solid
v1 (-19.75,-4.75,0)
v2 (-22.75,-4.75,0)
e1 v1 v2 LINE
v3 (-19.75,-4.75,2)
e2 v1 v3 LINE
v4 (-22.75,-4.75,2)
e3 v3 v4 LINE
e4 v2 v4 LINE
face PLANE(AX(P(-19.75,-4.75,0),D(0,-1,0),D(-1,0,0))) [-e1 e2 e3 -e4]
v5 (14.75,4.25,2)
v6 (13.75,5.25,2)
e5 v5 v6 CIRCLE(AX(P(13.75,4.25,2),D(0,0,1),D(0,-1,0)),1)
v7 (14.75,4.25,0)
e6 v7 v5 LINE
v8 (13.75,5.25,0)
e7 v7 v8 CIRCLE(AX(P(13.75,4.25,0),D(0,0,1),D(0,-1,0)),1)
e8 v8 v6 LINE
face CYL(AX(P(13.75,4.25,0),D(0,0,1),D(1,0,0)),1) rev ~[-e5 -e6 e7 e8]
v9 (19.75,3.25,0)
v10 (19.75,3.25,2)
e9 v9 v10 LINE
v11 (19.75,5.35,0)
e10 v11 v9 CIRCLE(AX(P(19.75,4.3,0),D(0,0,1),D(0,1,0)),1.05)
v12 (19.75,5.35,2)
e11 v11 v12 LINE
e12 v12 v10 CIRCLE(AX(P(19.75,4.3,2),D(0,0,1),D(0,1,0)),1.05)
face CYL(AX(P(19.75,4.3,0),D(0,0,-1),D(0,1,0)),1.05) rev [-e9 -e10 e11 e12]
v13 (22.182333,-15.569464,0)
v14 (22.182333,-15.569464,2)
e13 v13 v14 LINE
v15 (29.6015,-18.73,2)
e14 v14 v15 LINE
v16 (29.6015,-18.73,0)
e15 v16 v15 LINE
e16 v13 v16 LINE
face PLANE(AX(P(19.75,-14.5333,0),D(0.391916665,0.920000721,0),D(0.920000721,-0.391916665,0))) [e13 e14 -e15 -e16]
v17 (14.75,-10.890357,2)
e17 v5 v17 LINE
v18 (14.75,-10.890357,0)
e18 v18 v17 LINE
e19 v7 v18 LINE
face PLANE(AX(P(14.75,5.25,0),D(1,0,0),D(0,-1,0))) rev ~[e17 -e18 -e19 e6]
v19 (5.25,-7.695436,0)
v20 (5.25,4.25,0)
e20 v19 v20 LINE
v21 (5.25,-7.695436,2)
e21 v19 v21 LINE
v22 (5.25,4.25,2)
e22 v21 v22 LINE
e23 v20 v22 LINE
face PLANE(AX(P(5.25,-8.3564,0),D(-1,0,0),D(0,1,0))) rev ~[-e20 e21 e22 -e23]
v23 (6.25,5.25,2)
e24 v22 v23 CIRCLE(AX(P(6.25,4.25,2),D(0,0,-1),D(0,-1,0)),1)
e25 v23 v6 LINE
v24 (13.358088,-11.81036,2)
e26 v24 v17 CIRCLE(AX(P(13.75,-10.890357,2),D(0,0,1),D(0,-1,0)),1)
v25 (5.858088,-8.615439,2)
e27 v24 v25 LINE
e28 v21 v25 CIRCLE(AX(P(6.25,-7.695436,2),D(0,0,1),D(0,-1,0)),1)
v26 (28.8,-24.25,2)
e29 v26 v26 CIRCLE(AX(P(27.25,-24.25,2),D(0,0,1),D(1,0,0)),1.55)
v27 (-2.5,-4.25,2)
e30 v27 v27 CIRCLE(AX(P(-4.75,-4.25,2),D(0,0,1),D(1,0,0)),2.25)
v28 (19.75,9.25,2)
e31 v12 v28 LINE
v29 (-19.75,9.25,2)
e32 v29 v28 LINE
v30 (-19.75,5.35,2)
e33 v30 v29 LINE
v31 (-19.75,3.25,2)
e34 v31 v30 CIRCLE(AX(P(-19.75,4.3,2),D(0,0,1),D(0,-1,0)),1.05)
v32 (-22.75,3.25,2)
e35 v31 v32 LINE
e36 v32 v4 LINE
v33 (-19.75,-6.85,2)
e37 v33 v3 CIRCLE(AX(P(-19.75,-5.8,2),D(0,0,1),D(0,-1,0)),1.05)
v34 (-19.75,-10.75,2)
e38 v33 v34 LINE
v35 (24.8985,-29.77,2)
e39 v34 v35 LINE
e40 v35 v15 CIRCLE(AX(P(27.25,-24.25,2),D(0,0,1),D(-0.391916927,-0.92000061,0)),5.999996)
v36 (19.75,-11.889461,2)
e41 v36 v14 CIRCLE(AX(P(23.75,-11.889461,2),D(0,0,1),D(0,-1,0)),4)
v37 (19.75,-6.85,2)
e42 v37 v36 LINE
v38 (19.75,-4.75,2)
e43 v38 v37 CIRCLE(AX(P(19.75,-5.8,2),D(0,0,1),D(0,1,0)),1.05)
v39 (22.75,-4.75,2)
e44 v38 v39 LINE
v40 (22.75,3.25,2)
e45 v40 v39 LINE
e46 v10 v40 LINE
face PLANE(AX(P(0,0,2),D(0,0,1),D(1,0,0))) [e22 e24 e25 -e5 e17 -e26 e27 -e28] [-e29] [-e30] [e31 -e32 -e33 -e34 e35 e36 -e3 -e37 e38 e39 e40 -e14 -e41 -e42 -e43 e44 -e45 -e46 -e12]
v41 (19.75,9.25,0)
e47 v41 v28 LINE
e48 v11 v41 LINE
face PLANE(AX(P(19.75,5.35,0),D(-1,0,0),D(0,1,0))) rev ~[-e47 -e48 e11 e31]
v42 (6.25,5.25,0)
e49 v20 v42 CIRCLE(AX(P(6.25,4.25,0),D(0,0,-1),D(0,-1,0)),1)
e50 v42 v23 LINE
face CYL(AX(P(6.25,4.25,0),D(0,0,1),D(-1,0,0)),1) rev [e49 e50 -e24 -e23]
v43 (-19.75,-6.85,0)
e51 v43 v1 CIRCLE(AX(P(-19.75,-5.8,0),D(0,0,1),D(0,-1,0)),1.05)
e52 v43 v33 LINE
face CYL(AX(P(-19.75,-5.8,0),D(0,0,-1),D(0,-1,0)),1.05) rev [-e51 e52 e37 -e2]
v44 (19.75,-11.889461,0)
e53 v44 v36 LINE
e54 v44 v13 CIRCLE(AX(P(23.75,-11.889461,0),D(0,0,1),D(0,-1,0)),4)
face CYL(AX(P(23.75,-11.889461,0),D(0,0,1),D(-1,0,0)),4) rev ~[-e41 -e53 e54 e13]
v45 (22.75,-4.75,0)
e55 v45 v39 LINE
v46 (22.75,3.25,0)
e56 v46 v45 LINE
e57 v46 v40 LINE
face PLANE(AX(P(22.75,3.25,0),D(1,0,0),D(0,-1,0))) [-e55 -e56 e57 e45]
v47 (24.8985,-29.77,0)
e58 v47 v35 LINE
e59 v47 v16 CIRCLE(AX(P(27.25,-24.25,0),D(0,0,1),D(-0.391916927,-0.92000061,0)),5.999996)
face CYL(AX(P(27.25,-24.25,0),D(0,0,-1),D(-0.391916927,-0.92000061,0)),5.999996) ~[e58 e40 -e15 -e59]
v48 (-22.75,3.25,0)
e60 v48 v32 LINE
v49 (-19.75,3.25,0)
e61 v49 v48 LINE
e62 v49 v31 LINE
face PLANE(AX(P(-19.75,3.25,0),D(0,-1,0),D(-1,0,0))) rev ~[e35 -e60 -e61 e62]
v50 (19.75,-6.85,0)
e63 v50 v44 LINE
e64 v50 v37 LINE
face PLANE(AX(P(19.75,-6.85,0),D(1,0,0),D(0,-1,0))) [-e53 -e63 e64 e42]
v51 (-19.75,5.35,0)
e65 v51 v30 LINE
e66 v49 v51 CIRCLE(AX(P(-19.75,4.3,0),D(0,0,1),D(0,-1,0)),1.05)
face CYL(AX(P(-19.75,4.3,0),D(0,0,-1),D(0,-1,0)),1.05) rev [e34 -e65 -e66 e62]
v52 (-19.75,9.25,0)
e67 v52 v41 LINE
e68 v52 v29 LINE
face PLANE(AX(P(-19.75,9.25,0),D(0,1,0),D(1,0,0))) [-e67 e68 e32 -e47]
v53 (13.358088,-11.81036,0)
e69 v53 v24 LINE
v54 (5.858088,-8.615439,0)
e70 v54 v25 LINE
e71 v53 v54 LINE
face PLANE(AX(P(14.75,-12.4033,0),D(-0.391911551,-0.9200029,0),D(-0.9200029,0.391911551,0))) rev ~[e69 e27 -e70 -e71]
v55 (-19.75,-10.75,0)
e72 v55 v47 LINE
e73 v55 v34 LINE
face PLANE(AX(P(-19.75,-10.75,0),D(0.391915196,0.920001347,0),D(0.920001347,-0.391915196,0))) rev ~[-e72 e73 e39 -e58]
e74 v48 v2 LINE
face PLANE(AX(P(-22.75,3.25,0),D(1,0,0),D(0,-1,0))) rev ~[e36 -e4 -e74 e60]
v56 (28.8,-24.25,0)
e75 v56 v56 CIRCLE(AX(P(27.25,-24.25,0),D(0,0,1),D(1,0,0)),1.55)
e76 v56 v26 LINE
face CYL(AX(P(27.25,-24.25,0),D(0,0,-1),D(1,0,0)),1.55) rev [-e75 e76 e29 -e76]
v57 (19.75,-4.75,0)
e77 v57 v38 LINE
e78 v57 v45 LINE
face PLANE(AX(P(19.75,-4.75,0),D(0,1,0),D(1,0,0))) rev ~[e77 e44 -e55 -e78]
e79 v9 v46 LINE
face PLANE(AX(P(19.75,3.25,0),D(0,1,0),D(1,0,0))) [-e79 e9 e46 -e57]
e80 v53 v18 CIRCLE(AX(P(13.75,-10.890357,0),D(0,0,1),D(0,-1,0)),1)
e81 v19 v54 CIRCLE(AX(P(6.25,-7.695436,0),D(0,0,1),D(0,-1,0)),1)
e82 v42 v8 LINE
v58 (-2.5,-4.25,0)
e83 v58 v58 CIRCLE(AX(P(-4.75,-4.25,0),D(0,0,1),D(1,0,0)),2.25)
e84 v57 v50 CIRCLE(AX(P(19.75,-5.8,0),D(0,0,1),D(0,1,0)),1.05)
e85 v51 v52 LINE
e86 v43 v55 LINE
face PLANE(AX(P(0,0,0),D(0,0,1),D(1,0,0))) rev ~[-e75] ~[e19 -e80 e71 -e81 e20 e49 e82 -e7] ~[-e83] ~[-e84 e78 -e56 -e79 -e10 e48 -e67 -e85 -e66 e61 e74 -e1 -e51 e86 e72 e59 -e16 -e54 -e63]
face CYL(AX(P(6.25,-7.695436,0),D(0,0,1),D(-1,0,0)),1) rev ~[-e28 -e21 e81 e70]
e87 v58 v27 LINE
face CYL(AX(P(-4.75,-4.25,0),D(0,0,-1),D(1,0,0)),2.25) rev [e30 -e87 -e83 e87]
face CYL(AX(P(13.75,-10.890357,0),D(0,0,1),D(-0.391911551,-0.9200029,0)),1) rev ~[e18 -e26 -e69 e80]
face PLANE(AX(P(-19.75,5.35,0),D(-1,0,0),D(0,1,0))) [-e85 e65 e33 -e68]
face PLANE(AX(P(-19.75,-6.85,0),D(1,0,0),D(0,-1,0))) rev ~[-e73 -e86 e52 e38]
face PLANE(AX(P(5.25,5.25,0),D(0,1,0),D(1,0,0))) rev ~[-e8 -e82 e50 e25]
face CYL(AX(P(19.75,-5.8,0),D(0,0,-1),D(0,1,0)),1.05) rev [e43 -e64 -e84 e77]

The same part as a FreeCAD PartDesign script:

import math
import FreeCAD as App
import Part
import Sketcher
from FreeCAD import Vector
Q = App.Units.Quantity


def edges_at(feature, points):
    """Names of the edges that pass closest to the given points."""
    edges = feature.Shape.Edges
    near = lambda p: min(range(len(edges)), key=lambda i: edges[i].distToShape(Part.Vertex(*p))[0])
    return sorted({f"Edge{near(p) + 1}" for p in points})

doc = App.newDocument("Part")
params = doc.addObject("Spreadsheet::Sheet", "Params")
for row, (alias, value) in enumerate([
    ("sketch1_radius", "6 mm"),
    ("sketch1_diameter", "3.1 mm"),
    ("sketch1_diameter2", "4.5 mm"),
    ("sketch1_width", "3 mm"),
    ("sketch1_height", "8 mm"),
    ("pad1_length", "2 mm"),
    ("fillet_radius", "4 mm"),
    ("fillet2_radius", "1 mm"),
], start=1):
    params.set(f"A{row}", alias)
    params.set(f"B{row}", "=" + value)
    params.setAlias(f"B{row}", alias)

body = doc.addObject("PartDesign::Body", "Body")

# Sketch on XY plane
sketch1 = body.newObject("Sketcher::SketchObject", "Sketch")
sketch1.AttachmentSupport = (doc.getObject("XY_Plane"), [""])
sketch1.MapMode = "FlatFace"
sketch1.addGeometry(Part.ArcOfCircle(Part.Circle(Vector(-19.8, 4.3, 0), Vector(0, 0, 1), 1), math.radians(-90), math.radians(90)), False)
sketch1.addGeometry(Part.LineSegment(Vector(-19.8, 3.2, 0), Vector(-22.8, 3.2, 0)), False)
sketch1.addGeometry(Part.LineSegment(Vector(-22.8, 3.2, 0), Vector(-22.8, -4.8, 0)), False)
sketch1.addGeometry(Part.LineSegment(Vector(-22.8, -4.8, 0), Vector(-19.8, -4.8, 0)), False)
sketch1.addGeometry(Part.ArcOfCircle(Part.Circle(Vector(-19.8, -5.8, 0), Vector(0, 0, 1), 1), math.radians(-90), math.radians(90)), False)
sketch1.addGeometry(Part.LineSegment(Vector(-19.8, -6.8, 0), Vector(-19.8, -10.8, 0)), False)
sketch1.addGeometry(Part.LineSegment(Vector(-19.8, -10.8, 0), Vector(24.9, -29.8, 0)), False)
sketch1.addGeometry(Part.ArcOfCircle(Part.Circle(Vector(27.2, -24.2, 0), Vector(0, 0, 1), 6), math.radians(-113), math.radians(67)), False)
sketch1.addGeometry(Part.LineSegment(Vector(29.6, -18.7, 0), Vector(19.8, -14.5, 0)), False)
sketch1.addGeometry(Part.LineSegment(Vector(19.8, -14.5, 0), Vector(19.8, -6.8, 0)), False)
sketch1.addGeometry(Part.ArcOfCircle(Part.Circle(Vector(19.8, -5.8, 0), Vector(0, 0, 1), 1), math.radians(90), math.radians(270)), False)
sketch1.addGeometry(Part.LineSegment(Vector(19.8, -4.8, 0), Vector(22.8, -4.8, 0)), False)
sketch1.addGeometry(Part.LineSegment(Vector(22.8, -4.8, 0), Vector(22.8, 3.2, 0)), False)
sketch1.addGeometry(Part.LineSegment(Vector(22.8, 3.2, 0), Vector(19.8, 3.2, 0)), False)
sketch1.addGeometry(Part.ArcOfCircle(Part.Circle(Vector(19.8, 4.3, 0), Vector(0, 0, 1), 1), math.radians(90), math.radians(270)), False)
sketch1.addGeometry(Part.LineSegment(Vector(19.8, 5.3, 0), Vector(19.8, 9.2, 0)), False)
sketch1.addGeometry(Part.LineSegment(Vector(19.8, 9.2, 0), Vector(-19.8, 9.2, 0)), False)
sketch1.addGeometry(Part.LineSegment(Vector(-19.8, 9.2, 0), Vector(-19.8, 5.3, 0)), False)
sketch1.addGeometry(Part.Circle(Vector(27.2, -24.2, 0), Vector(0, 0, 1), 1.6), False)
sketch1.addGeometry(Part.Circle(Vector(-4.8, -4.2, 0), Vector(0, 0, 1), 2.2), False)
sketch1.addGeometry(Part.LineSegment(Vector(5.2, -8.4, 0), Vector(5.2, 5.2, 0)), False)
sketch1.addGeometry(Part.LineSegment(Vector(5.2, 5.2, 0), Vector(14.8, 5.2, 0)), False)
sketch1.addGeometry(Part.LineSegment(Vector(14.8, 5.2, 0), Vector(14.8, -12.4, 0)), False)
sketch1.addGeometry(Part.LineSegment(Vector(14.8, -12.4, 0), Vector(5.2, -8.4, 0)), False)
sketch1.addConstraint(Sketcher.Constraint("Tangent", 0, 1, 1, 1))
sketch1.addConstraint(Sketcher.Constraint("Coincident", 1, 2, 2, 1))
sketch1.addConstraint(Sketcher.Constraint("Coincident", 2, 2, 3, 1))
sketch1.addConstraint(Sketcher.Constraint("Tangent", 3, 2, 4, 2))
sketch1.addConstraint(Sketcher.Constraint("Coincident", 4, 1, 5, 1))
sketch1.addConstraint(Sketcher.Constraint("Coincident", 5, 2, 6, 1))
sketch1.addConstraint(Sketcher.Constraint("Tangent", 6, 2, 7, 1))
sketch1.addConstraint(Sketcher.Constraint("Tangent", 7, 2, 8, 1))
sketch1.addConstraint(Sketcher.Constraint("Coincident", 8, 2, 9, 1))
sketch1.addConstraint(Sketcher.Constraint("Coincident", 9, 2, 10, 2))
sketch1.addConstraint(Sketcher.Constraint("Tangent", 10, 1, 11, 1))
sketch1.addConstraint(Sketcher.Constraint("Coincident", 11, 2, 12, 1))
sketch1.addConstraint(Sketcher.Constraint("Coincident", 12, 2, 13, 1))
sketch1.addConstraint(Sketcher.Constraint("Tangent", 13, 2, 14, 2))
sketch1.addConstraint(Sketcher.Constraint("Coincident", 14, 1, 15, 1))
sketch1.addConstraint(Sketcher.Constraint("Coincident", 15, 2, 16, 1))
sketch1.addConstraint(Sketcher.Constraint("Coincident", 16, 2, 17, 1))
sketch1.addConstraint(Sketcher.Constraint("Coincident", 17, 2, 0, 2))
sketch1.addConstraint(Sketcher.Constraint("Coincident", 20, 2, 21, 1))
sketch1.addConstraint(Sketcher.Constraint("Coincident", 21, 2, 22, 1))
sketch1.addConstraint(Sketcher.Constraint("Coincident", 22, 2, 23, 1))
sketch1.addConstraint(Sketcher.Constraint("Coincident", 23, 2, 20, 1))
sketch1.addConstraint(Sketcher.Constraint("Horizontal", 1))
sketch1.addConstraint(Sketcher.Constraint("Vertical", 2))
sketch1.addConstraint(Sketcher.Constraint("Horizontal", 3))
sketch1.addConstraint(Sketcher.Constraint("Vertical", 5))
sketch1.addConstraint(Sketcher.Constraint("Vertical", 9))
sketch1.addConstraint(Sketcher.Constraint("Horizontal", 11))
sketch1.addConstraint(Sketcher.Constraint("Vertical", 12))
sketch1.addConstraint(Sketcher.Constraint("Horizontal", 13))
sketch1.addConstraint(Sketcher.Constraint("Vertical", 15))
sketch1.addConstraint(Sketcher.Constraint("Horizontal", 16))
sketch1.addConstraint(Sketcher.Constraint("Vertical", 17))
sketch1.addConstraint(Sketcher.Constraint("Vertical", 20))
sketch1.addConstraint(Sketcher.Constraint("Horizontal", 21))
sketch1.addConstraint(Sketcher.Constraint("Vertical", 22))
sketch1.addConstraint(Sketcher.Constraint("Coincident", 18, 3, 7, 3))
sketch1.addConstraint(Sketcher.Constraint("Equal", 0, 4))
sketch1.addConstraint(Sketcher.Constraint("Equal", 4, 10))
sketch1.addConstraint(Sketcher.Constraint("Equal", 10, 14))
sketch1.addConstraint(Sketcher.Constraint("Symmetric", 4, 3, 10, 3, -2))
sketch1.addConstraint(Sketcher.Constraint("Symmetric", 0, 3, 14, 3, -2))
sketch1.addConstraint(Sketcher.Constraint("Parallel", 6, 8))
sketch1.addConstraint(Sketcher.Constraint("Parallel", 8, 23))
sketch1.addConstraint(Sketcher.Constraint("Vertical", 0, 3, 4, 3))
sketch1.addConstraint(Sketcher.Constraint("Vertical", 3, 2, 4, 1))
sketch1.addConstraint(Sketcher.Constraint("Vertical", 14, 3, 8, 2))
sketch1.addConstraint(Sketcher.Constraint("Vertical", 13, 2, 14, 1))
sketch1.addConstraint(Sketcher.Constraint("Vertical", 5, 2, 16, 2))
sketch1.addConstraint(Sketcher.Constraint("Equal", 3, 11))
sketch1.addConstraint(Sketcher.Constraint("Equal", 5, 15))
sketch1.addConstraint(Sketcher.Constraint("Radius", 7, Q("6 mm")))
sketch1.addConstraint(Sketcher.Constraint("Diameter", 18, Q("3.1 mm")))
sketch1.addConstraint(Sketcher.Constraint("Diameter", 19, Q("4.5 mm")))
sketch1.addConstraint(Sketcher.Constraint("DistanceX", 1, 2, 1, 1, Q("3 mm")))
sketch1.addConstraint(Sketcher.Constraint("DistanceY", 2, 2, 2, 1, Q("8 mm")))
sketch1.addConstraint(Sketcher.Constraint("Radius", 0, Q("1.05 mm")))
sketch1.addConstraint(Sketcher.Constraint("DistanceX", 16, 2, 16, 1, Q("39.5 mm")))
sketch1.addConstraint(Sketcher.Constraint("DistanceX", 4, 3, 19, 3, Q("15 mm")))
sketch1.addConstraint(Sketcher.Constraint("DistanceX", 19, 3, 7, 3, Q("32 mm")))
sketch1.addConstraint(Sketcher.Constraint("DistanceY", 7, 3, 19, 3, Q("20 mm")))
sketch1.addConstraint(Sketcher.Constraint("DistanceY", 5, 2, 3, 2, Q("6 mm")))
sketch1.addConstraint(Sketcher.Constraint("DistanceY", 20, 2, 15, 2, Q("4 mm")))
sketch1.addConstraint(Sketcher.Constraint("DistanceX", 21, 2, 14, 1, Q("5 mm")))
sketch1.addConstraint(Sketcher.Constraint("DistanceX", 21, 1, 21, 2, Q("9.5 mm")))
sketch1.addConstraint(Sketcher.Constraint("DistanceY", -1, 1, 0, 3, Q("4.3 mm")))
sketch1.addConstraint(Sketcher.Constraint("DistanceY", 19, 3, 0, 1, Q("7.5 mm")))
sketch1.addConstraint(Sketcher.Constraint("DistanceY", 8, 2, 22, 2, Q("2.13 mm")))
sketch1.setExpression("Constraints[51]", "Params.sketch1_radius")
sketch1.setExpression("Constraints[52]", "Params.sketch1_diameter")
sketch1.setExpression("Constraints[53]", "Params.sketch1_diameter2")
sketch1.setExpression("Constraints[54]", "Params.sketch1_width")
sketch1.setExpression("Constraints[55]", "Params.sketch1_height")
pad1 = body.newObject("PartDesign::Pad", "Pad")
pad1.Profile = sketch1
pad1.setExpression("Length", "Params.pad1_length")
doc.recompute()

fillet = body.newObject("PartDesign::Fillet", "Fillet")
fillet.Base = (pad1, edges_at(pad1, [(19.75, -14.533, 1)]))
fillet.setExpression("Radius", "Params.fillet_radius")
doc.recompute()

fillet2 = body.newObject("PartDesign::Fillet", "Fillet001")
fillet2.Base = (fillet, edges_at(fillet, [
    (5.25, 5.25, 1),
    (14.75, 5.25, 1),
    (5.25, -8.356, 1),
    (14.75, -12.403, 1),
]))
fillet2.setExpression("Radius", "Params.fillet2_radius")

doc.recompute()
